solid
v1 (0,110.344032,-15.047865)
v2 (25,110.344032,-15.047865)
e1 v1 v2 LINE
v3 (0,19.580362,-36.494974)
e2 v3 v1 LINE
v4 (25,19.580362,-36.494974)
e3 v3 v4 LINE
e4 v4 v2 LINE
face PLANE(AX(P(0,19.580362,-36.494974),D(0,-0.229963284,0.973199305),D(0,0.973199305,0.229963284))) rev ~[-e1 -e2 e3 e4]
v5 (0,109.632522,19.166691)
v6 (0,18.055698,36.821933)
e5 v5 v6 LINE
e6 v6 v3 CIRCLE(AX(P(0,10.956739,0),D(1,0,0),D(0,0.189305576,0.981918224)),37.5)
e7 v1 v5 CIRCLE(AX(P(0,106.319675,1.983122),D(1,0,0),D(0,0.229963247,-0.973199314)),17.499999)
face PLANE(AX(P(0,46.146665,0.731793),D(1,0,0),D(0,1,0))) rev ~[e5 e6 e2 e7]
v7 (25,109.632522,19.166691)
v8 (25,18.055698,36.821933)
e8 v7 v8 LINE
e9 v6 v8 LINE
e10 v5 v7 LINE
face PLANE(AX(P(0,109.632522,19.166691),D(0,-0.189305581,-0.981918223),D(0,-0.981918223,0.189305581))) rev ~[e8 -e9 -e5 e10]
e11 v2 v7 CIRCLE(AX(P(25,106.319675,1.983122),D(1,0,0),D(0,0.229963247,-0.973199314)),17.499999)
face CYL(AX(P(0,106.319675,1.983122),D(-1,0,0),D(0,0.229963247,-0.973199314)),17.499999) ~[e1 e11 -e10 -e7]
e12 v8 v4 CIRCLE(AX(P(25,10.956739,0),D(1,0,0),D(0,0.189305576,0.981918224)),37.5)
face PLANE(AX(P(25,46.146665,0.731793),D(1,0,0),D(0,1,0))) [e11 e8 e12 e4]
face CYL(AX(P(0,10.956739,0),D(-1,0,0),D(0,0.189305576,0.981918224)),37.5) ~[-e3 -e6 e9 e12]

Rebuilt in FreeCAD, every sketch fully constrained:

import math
import FreeCAD as App
import Part
import Sketcher

doc = App.newDocument("Part")
params = doc.addObject("Spreadsheet::Sheet", "Params")
for row, (alias, value) in enumerate([
    ("sketch1_radius", "37.5 mm"),
    ("sketch1_radius2", "17.499999 mm"),
    ("pad1_length", "25 mm"),
], start=1):
    params.set(f"A{row}", alias)
    params.set(f"B{row}", "=" + value)
    params.setAlias(f"B{row}", alias)

body = doc.addObject("PartDesign::Body", "Body")

# Sketch on YZ plane
sketch1 = body.newObject("Sketcher::SketchObject", "Sketch")
sketch1.AttachmentSupport = (doc.getObject("YZ_Plane"), [""])
sketch1.MapMode = "FlatFace"
sketch1.addGeometry([
    Part.LineSegment(App.Vector(109.632522, 19.166691, 0), App.Vector(18.055698, 36.821933, 0)),
    Part.ArcOfCircle(Part.Circle(App.Vector(10.956739, 0, 0), App.Vector(0, 0, 1), 37.5), math.radians(79.087739), math.radians(283.29491)),
    Part.LineSegment(App.Vector(19.580362, -36.494974, 0), App.Vector(110.344032, -15.047865, 0)),
    Part.ArcOfCircle(Part.Circle(App.Vector(106.319675, 1.983122, 0), App.Vector(0, 0, 1), 17.499999), math.radians(-76.705092), math.radians(79.087741)),
], False)
sketch1.addConstraint([
    Sketcher.Constraint("Tangent", 0, 2, 1, 1),
    Sketcher.Constraint("Tangent", 1, 2, 2, 1),
    Sketcher.Constraint("Tangent", 2, 2, 3, 1),
    Sketcher.Constraint("Tangent", 3, 2, 0, 1),
    Sketcher.Constraint("PointOnObject", 1, 3, -1),
    Sketcher.Constraint("Radius", 1, 37.5),
    Sketcher.Constraint("Radius", 3, 17.499999),
    Sketcher.Constraint("DistanceY", 2, 2, 0, 2, 51.869798),
    Sketcher.Constraint("Distance", 0, 93.263188),
    Sketcher.Constraint("DistanceX", -1, 1, 1, 3, 10.956739),
])
sketch1.setExpression("Constraints[5]", "Params.sketch1_radius")
sketch1.setExpression("Constraints[6]", "Params.sketch1_radius2")
pad1 = body.newObject("PartDesign::Pad", "Pad")
pad1.Profile = sketch1
pad1.setExpression("Length", "Params.pad1_length")

doc.recompute()
